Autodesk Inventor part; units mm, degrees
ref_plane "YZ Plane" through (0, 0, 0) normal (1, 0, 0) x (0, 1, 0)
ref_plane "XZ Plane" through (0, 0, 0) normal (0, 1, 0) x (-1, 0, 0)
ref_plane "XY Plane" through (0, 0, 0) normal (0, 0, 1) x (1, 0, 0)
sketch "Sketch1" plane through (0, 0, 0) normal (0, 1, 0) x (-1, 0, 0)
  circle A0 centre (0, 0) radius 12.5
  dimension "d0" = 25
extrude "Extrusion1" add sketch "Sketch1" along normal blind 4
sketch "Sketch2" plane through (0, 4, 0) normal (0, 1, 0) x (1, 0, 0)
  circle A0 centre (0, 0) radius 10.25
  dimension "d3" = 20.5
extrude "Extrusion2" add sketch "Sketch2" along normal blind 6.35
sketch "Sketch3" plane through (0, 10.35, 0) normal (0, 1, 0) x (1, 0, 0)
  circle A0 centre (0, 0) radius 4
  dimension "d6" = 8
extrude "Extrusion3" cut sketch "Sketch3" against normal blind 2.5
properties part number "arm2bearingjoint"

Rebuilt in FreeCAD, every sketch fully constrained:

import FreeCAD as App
import Part
import Sketcher

V = App.Vector
Q = App.Units.Quantity

doc = App.newDocument("Part")
params = doc.addObject("Spreadsheet::Sheet", "Params")
for row, (alias, value) in enumerate([
    ("sketch1_diameter", "25 mm"),
    ("pad1_length", "4 mm"),
    ("sketch2_diameter", "20.5 mm"),
    ("pad2_length", "6.35 mm"),
    ("sketch3_diameter", "8 mm"),
    ("pocket1_length", "2.5 mm"),
], start=1):
    params.set(f"A{row}", alias)
    params.set(f"B{row}", "=" + value)
    params.setAlias(f"B{row}", alias)

body = doc.addObject("PartDesign::Body", "Body")

# Sketch on XZ plane
sketch1 = body.newObject("Sketcher::SketchObject", "Sketch")
sketch1.AttachmentSupport = (doc.getObject("XZ_Plane"), [""])
sketch1.MapMode = "FlatFace"
sketch1.addGeometry(Part.Circle(V(0, 0, 0), V(0, 0, 1), 12.5), False)
sketch1.addConstraint([
    Sketcher.Constraint("Coincident", 0, 3, -1, 1),
    Sketcher.Constraint("Diameter", 0, Q("25 mm")),
])
sketch1.setExpression("Constraints[1]", "Params.sketch1_diameter")
pad1 = body.newObject("PartDesign::Pad", "Pad")
pad1.Profile = sketch1
pad1.setExpression("Length", "Params.pad1_length")
pad1.Reversed = True

# Sketch on XZ plane
sketch2 = body.newObject("Sketcher::SketchObject", "Sketch001")
sketch2.AttachmentSupport = (doc.getObject("XZ_Plane"), [""])
sketch2.MapMode = "FlatFace"
sketch2.AttachmentOffset = App.Placement(V(0, 0, -4), App.Rotation())
sketch2.addGeometry(Part.Circle(V(0, 0, 0), V(0, 0, 1), 10.25), False)
sketch2.addConstraint([
    Sketcher.Constraint("Coincident", 0, 3, -1, 1),
    Sketcher.Constraint("Diameter", 0, Q("20.5 mm")),
])
sketch2.setExpression("Constraints[1]", "Params.sketch2_diameter")
pad2 = body.newObject("PartDesign::Pad", "Pad001")
pad2.Profile = sketch2
pad2.setExpression("Length", "Params.pad2_length")
pad2.Reversed = True

# Sketch on XZ plane
sketch3 = body.newObject("Sketcher::SketchObject", "Sketch002")
sketch3.AttachmentSupport = (doc.getObject("XZ_Plane"), [""])
sketch3.MapMode = "FlatFace"
sketch3.AttachmentOffset = App.Placement(V(0, 0, -10.35), App.Rotation())
sketch3.addGeometry(Part.Circle(V(0, 0, 0), V(0, 0, 1), 4), False)
sketch3.addConstraint([
    Sketcher.Constraint("Coincident", 0, 3, -1, 1),
    Sketcher.Constraint("Diameter", 0, Q("8 mm")),
])
sketch3.setExpression("Constraints[1]", "Params.sketch3_diameter")
pocket1 = body.newObject("PartDesign::Pocket", "Pocket")
pocket1.Profile = sketch3
pocket1.setExpression("Length", "Params.pocket1_length")
pocket1.Reversed = True

doc.recompute()
